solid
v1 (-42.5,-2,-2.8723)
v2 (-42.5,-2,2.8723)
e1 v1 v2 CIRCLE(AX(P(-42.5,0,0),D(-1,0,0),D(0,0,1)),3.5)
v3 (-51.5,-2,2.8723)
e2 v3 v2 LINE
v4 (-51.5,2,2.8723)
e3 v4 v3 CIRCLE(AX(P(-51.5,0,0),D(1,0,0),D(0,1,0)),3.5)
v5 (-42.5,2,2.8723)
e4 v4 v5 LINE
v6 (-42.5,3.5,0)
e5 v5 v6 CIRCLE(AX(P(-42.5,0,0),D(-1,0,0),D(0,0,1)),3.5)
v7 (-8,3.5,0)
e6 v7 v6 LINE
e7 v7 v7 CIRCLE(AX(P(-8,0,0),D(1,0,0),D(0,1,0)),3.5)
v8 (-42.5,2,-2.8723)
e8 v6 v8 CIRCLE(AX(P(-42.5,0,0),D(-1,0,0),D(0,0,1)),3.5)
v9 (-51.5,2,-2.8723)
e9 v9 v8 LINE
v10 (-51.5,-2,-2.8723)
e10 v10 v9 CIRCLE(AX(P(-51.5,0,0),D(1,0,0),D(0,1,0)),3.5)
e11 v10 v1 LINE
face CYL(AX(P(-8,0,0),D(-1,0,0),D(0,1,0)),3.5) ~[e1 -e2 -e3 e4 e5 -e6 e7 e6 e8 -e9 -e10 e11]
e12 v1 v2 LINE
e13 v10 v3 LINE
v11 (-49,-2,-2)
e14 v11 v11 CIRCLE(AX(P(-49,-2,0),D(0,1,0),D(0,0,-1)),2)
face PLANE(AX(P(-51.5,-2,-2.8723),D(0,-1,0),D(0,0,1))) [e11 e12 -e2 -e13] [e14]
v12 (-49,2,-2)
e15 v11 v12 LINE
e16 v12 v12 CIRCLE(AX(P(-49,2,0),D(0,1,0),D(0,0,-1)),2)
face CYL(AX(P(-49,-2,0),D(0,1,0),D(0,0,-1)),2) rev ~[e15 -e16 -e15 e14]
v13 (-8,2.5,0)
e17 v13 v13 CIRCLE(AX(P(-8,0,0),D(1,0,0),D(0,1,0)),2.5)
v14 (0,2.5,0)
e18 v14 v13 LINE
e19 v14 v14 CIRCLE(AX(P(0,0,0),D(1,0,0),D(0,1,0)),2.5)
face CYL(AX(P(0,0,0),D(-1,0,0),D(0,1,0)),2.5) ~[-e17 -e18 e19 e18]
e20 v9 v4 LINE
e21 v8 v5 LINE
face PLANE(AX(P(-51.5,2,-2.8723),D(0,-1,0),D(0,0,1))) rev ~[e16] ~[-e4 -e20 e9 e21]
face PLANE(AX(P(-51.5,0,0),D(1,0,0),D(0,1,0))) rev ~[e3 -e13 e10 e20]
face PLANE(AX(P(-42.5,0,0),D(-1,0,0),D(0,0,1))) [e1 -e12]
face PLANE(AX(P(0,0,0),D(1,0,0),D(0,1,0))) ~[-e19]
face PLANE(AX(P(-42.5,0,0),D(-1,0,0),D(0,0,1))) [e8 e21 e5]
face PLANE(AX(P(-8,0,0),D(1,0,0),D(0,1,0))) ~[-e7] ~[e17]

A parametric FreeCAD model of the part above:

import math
import FreeCAD as App
import Part
import Sketcher
Q = App.Units.Quantity

doc = App.newDocument("Part")
body = doc.addObject("PartDesign::Body", "Body")

# Sketch on XY plane
sketch1 = doc.addObject("Sketcher::SketchObject", "Sketch")
body.addObject(sketch1)
sketch1.AttachmentSupport = (doc.XY_Plane, [""])
sketch1.MapMode = "FlatFace"
sketch1.addGeometry([
    Part.LineSegment(App.Vector(-51.5, 0, 0), App.Vector(0, 0, 0)),  # 0
    Part.LineSegment(App.Vector(0, 0, 0), App.Vector(0, 2.5, 0)),  # 1
    Part.LineSegment(App.Vector(0, 2.5, 0), App.Vector(-8, 2.5, 0)),  # 2
    Part.LineSegment(App.Vector(-8, 2.5, 0), App.Vector(-8, 3.5, 0)),  # 3
    Part.LineSegment(App.Vector(-8, 3.5, 0), App.Vector(-51.5, 3.5, 0)),  # 4
    Part.LineSegment(App.Vector(-51.5, 3.5, 0), App.Vector(-51.5, 0, 0)),  # 5
], False)
sketch1.addConstraint([
    Sketcher.Constraint("Coincident", 0, 2, 1, 1),
    Sketcher.Constraint("Coincident", 1, 2, 2, 1),
    Sketcher.Constraint("Coincident", 2, 2, 3, 1),
    Sketcher.Constraint("Coincident", 3, 2, 4, 1),
    Sketcher.Constraint("Coincident", 4, 2, 5, 1),
    Sketcher.Constraint("Coincident", 5, 2, 0, 1),
    Sketcher.Constraint("Horizontal", 0),
    Sketcher.Constraint("Vertical", 1),
    Sketcher.Constraint("Horizontal", 2),
    Sketcher.Constraint("Vertical", 3),
    Sketcher.Constraint("Horizontal", 4),
    Sketcher.Constraint("Vertical", 5),
    Sketcher.Constraint("Coincident", 0, 2, -1, 1),
    Sketcher.Constraint("DistanceX", 2, 2, 2, 1, Q("8 mm")),
    Sketcher.Constraint("DistanceX", 4, 2, 4, 1, Q("43.5 mm")),
    Sketcher.Constraint("DistanceY", 3, 1, 3, 2, Q("1 mm")),
    Sketcher.Constraint("DistanceY", 1, 1, 1, 2, Q("2.5 mm")),
])
revolution = doc.addObject("PartDesign::Revolution", "Revolution")
body.addObject(revolution)
revolution.Profile = sketch1
revolution.ReferenceAxis = (sketch1, ["H_Axis"])
revolution.Angle = 360

# Sketch on YZ plane
sketch2 = doc.addObject("Sketcher::SketchObject", "Sketch001")
body.addObject(sketch2)
sketch2.AttachmentSupport = (doc.YZ_Plane, [""])
sketch2.MapMode = "FlatFace"
sketch2.AttachmentOffset = App.Placement(App.Vector(0, 0, -51.5), App.Rotation())
sketch2.addGeometry([
    Part.LineSegment(App.Vector(2, -2.8723, 0), App.Vector(2, 2.8723, 0)),
    Part.ArcOfCircle(Part.Circle(App.Vector(0, 0, 0), App.Vector(0, 0, 1), 3.5), math.radians(-55.15027), math.radians(55.15027)),
    Part.ArcOfCircle(Part.Circle(App.Vector(0, 0, 0), App.Vector(0, 0, 1), 3.5), math.radians(124.84973), math.radians(235.15027)),
    Part.LineSegment(App.Vector(-2, -2.8723, 0), App.Vector(-2, 2.8723, 0)),
], False)
sketch2.addConstraint([
    Sketcher.Constraint("Coincident", 0, 1, 1, 1),
    Sketcher.Constraint("Coincident", 1, 2, 0, 2),
    Sketcher.Constraint("Coincident", 2, 1, 3, 2),
    Sketcher.Constraint("Coincident", 3, 1, 2, 2),
    Sketcher.Constraint("Vertical", 0),
    Sketcher.Constraint("Vertical", 3),
    Sketcher.Constraint("Coincident", 1, 3, -1, 1),
    Sketcher.Constraint("Coincident", 2, 3, -1, 1),
    Sketcher.Constraint("Equal", 1, 2),
    Sketcher.Constraint("Horizontal", 1, 2, 2, 1),
    Sketcher.Constraint("DistanceX", -1, 1, 0, 1, Q("2 mm")),
    Sketcher.Constraint("Radius", 1, Q("3.5 mm")),
])
pocket1 = doc.addObject("PartDesign::Pocket", "Pocket")
body.addObject(pocket1)
pocket1.Profile = sketch2
pocket1.Length = 9
pocket1.Reversed = True

# Sketch on XZ plane
sketch3 = doc.addObject("Sketcher::SketchObject", "Sketch002")
body.addObject(sketch3)
sketch3.AttachmentSupport = (doc.XZ_Plane, [""])
sketch3.MapMode = "FlatFace"
sketch3.AttachmentOffset = App.Placement(App.Vector(0, 0, 2), App.Rotation())
sketch3.addGeometry(Part.Circle(App.Vector(-49, 0, 0), App.Vector(0, 0, 1), 2), False)
sketch3.addConstraint([
    Sketcher.Constraint("PointOnObject", 0, 3, -1),
    Sketcher.Constraint("Diameter", 0, Q("4 mm")),
    Sketcher.Constraint("DistanceX", 0, 3, -1, 1, Q("49 mm")),
])
doc.recompute()
hole = doc.addObject("PartDesign::Hole", "Hole")
body.addObject(hole)
hole.Profile = sketch3
hole.ThreadType = "None"
hole.Diameter = 4
hole.DepthType = "Dimension"
hole.Depth = 4
hole.DrillPoint = "Flat"

doc.recompute()
